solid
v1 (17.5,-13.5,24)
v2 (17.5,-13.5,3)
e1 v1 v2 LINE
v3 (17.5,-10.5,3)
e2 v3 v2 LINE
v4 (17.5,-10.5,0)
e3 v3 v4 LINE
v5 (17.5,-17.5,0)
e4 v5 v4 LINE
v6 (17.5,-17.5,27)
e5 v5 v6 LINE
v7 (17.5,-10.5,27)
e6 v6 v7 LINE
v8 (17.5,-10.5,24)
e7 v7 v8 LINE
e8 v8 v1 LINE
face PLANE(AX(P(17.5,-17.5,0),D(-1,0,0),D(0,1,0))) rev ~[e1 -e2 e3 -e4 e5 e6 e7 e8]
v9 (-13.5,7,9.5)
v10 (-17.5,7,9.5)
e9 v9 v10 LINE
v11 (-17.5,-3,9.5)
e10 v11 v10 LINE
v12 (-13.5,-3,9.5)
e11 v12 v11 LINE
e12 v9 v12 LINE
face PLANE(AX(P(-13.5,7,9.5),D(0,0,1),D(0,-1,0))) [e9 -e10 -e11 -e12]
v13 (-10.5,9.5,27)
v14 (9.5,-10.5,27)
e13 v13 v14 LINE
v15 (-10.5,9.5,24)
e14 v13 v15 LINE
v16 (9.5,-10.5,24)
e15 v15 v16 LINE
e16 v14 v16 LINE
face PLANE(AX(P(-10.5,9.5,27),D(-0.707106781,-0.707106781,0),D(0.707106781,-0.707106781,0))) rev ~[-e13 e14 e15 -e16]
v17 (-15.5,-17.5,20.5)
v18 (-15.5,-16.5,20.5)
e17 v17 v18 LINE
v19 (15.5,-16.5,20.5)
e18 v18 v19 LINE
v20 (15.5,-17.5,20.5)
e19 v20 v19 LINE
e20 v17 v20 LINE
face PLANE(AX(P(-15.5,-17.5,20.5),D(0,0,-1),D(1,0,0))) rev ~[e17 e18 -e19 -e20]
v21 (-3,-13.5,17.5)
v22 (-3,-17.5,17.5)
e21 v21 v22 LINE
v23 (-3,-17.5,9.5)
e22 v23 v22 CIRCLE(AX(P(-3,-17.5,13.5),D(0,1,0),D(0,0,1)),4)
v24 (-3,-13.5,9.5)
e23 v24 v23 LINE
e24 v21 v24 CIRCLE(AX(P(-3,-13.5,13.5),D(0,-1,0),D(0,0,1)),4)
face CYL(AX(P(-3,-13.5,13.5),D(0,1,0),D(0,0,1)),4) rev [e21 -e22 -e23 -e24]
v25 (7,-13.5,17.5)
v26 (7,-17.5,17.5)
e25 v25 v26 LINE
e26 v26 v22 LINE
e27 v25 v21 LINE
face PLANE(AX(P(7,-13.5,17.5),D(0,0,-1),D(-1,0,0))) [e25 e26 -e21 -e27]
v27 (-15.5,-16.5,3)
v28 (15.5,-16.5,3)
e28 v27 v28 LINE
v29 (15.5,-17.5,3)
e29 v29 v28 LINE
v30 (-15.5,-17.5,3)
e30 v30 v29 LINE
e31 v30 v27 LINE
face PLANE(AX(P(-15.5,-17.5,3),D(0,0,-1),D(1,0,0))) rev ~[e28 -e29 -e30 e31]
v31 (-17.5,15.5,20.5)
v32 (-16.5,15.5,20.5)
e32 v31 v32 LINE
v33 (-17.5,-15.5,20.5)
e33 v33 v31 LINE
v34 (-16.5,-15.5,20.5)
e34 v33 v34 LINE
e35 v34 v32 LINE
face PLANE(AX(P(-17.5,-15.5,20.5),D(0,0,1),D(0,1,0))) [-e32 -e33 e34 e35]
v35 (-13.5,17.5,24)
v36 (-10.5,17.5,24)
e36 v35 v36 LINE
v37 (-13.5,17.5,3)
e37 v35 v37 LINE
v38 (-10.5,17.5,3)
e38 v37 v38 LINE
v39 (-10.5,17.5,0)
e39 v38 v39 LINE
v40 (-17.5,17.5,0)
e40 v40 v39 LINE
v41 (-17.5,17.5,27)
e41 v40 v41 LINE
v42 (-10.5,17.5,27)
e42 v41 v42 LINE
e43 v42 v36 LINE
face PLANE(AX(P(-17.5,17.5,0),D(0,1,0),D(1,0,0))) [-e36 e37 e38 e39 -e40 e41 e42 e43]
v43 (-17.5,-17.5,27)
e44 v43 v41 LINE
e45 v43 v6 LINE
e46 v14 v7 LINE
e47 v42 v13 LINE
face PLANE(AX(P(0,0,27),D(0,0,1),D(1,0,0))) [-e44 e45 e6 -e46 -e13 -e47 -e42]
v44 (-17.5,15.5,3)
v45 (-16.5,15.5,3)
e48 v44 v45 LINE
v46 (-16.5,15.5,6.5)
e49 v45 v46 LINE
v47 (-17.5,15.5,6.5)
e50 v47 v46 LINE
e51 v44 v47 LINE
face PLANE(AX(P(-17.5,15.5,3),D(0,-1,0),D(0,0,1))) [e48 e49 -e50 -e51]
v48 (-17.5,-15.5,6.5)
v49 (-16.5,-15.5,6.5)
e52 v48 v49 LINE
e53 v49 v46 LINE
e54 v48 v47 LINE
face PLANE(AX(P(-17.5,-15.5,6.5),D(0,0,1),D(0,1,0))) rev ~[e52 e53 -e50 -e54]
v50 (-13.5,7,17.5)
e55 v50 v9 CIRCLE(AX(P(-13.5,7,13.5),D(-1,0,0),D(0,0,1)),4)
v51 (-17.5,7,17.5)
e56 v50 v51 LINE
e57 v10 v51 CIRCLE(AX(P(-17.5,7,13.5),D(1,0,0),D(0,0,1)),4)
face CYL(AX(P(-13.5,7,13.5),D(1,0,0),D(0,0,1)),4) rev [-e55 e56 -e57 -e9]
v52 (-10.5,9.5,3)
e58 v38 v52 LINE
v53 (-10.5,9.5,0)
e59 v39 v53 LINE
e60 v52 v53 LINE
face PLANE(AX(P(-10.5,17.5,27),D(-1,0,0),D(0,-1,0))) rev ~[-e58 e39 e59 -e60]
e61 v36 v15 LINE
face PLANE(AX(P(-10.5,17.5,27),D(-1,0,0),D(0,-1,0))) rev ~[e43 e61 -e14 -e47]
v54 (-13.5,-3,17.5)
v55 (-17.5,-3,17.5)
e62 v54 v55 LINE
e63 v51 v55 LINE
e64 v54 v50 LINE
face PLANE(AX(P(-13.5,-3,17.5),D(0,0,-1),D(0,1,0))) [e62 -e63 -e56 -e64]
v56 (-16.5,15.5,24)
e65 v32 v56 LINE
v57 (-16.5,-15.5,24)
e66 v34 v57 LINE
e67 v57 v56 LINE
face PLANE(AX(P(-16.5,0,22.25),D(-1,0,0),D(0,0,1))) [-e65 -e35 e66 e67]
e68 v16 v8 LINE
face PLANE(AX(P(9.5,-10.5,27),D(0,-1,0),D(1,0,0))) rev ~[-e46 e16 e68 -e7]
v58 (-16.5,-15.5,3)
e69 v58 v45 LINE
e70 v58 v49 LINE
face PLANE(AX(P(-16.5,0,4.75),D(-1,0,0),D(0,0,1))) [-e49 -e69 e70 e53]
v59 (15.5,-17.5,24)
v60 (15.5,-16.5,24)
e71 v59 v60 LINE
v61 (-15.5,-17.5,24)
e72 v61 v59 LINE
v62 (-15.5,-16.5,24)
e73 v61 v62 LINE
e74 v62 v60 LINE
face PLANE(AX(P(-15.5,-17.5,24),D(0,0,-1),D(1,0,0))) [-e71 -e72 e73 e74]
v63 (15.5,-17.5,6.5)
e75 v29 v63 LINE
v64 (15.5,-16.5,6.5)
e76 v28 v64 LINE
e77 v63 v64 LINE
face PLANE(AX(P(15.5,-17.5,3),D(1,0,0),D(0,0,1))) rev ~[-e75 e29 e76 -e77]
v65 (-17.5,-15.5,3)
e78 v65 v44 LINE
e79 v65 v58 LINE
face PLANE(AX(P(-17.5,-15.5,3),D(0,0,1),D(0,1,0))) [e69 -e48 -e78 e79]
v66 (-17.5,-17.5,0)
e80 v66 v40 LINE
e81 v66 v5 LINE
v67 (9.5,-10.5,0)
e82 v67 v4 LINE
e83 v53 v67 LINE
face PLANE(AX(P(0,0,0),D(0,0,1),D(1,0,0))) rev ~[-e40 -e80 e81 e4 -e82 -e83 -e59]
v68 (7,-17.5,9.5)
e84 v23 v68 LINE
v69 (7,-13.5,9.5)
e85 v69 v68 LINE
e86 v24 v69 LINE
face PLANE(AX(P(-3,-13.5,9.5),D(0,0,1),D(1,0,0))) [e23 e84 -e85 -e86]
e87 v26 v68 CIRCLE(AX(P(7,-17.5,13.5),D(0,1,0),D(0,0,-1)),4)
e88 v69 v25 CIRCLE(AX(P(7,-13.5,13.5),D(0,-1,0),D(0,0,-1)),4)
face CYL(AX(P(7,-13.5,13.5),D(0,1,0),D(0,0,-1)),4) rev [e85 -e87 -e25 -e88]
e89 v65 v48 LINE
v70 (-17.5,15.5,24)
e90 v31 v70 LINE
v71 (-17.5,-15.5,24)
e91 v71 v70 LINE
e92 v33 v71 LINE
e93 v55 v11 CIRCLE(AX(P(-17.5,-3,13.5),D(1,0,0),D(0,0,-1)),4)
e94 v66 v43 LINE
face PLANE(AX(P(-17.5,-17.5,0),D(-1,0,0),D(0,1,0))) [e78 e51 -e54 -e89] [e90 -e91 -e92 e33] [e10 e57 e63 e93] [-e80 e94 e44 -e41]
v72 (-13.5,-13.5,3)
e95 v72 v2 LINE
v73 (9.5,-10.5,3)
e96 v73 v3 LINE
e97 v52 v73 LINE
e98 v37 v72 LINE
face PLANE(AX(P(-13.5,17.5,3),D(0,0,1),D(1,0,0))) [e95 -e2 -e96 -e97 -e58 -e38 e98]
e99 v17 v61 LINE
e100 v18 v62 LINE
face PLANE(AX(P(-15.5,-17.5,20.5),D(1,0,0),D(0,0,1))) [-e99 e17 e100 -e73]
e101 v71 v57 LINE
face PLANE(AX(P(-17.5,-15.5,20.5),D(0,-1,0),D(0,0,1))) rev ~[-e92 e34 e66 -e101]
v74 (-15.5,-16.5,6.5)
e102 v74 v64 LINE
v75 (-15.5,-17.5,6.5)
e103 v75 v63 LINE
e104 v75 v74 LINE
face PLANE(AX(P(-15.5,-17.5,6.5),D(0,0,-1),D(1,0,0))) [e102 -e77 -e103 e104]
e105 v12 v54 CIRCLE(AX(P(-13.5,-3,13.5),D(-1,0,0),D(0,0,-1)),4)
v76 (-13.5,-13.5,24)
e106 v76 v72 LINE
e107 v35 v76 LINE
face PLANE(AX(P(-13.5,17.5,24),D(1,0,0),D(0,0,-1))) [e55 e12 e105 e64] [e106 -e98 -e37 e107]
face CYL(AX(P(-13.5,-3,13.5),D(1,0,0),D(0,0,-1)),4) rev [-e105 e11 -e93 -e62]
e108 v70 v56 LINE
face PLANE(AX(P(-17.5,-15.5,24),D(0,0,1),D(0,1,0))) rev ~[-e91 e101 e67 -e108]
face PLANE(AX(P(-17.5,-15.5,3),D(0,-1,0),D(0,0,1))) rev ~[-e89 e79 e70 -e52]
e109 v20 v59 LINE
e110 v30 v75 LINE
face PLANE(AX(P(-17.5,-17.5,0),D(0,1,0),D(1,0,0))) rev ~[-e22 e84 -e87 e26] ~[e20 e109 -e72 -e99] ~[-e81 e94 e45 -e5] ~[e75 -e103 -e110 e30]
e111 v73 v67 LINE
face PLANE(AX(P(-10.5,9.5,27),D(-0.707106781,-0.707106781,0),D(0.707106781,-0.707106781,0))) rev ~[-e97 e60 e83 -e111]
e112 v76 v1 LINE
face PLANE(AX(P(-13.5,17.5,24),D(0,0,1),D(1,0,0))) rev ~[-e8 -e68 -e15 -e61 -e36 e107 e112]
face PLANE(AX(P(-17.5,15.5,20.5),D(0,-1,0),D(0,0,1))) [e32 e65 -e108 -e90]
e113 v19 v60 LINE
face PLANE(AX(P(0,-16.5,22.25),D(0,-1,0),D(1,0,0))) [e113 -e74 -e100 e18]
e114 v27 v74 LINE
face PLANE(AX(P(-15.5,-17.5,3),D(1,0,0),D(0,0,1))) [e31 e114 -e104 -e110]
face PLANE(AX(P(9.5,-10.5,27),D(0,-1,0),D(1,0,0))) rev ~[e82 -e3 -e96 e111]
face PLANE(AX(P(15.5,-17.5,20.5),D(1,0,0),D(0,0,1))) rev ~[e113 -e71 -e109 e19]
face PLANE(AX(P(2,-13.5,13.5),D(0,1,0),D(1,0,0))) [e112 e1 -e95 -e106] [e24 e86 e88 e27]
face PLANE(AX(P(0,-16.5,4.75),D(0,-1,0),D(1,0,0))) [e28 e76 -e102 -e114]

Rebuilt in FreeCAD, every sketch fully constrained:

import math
import FreeCAD as App
import Part
import Sketcher

V = App.Vector
Q = App.Units.Quantity


def add_polygon(sketch, points):
    """Adds a closed chain of lines whose ends are joined by coincident constraints."""
    first, n = sketch.GeometryCount, len(points)
    for a, b in zip(points, points[1:] + points[:1]):
        sketch.addGeometry(Part.LineSegment(App.Vector(*a, 0), App.Vector(*b, 0)), False)
    for i in range(n):
        sketch.addConstraint(Sketcher.Constraint("Coincident", first + i, 2, first + (i + 1) % n, 1))

doc = App.newDocument("Part")
params = doc.addObject("Spreadsheet::Sheet", "Params")
for row, (alias, value) in enumerate([
    ("sketch1_width", "35 mm"),
    ("pad1_length", "27 mm"),
    ("sketch2_width", "31 mm"),
    ("sketch2_height", "21 mm"),
    ("pocket1_length", "31 mm"),
    ("sketch3_width", "28 mm"),
    ("sketch3_width2", "8 mm"),
    ("sketch4_radius", "4 mm"),
    ("sketch4_width", "10 mm"),
    ("sketch5_radius", "4 mm"),
    ("sketch5_width", "10 mm"),
    ("sketch6_width", "31 mm"),
    ("sketch6_height", "3.5 mm"),
    ("pocket5_length", "1 mm"),
    ("sketch7_width", "31 mm"),
    ("sketch7_height", "3.5 mm"),
    ("pocket6_length", "1 mm"),
    ("sketch8_width", "31 mm"),
    ("sketch8_height", "3.5 mm"),
    ("pocket7_length", "1 mm"),
    ("sketch9_width", "31 mm"),
    ("sketch9_height", "3.5 mm"),
    ("pocket8_length", "1 mm"),
], start=1):
    params.set(f"A{row}", alias)
    params.set(f"B{row}", "=" + value)
    params.setAlias(f"B{row}", alias)

body = doc.addObject("PartDesign::Body", "Body")

sketch1 = body.newObject("Sketcher::SketchObject", "Sketch")
sketch1.AttachmentSupport = (doc.getObject("XY_Plane"), [""])
sketch1.MapMode = "FlatFace"
add_polygon(sketch1, [(-18, 18), (-18, -18), (18, -18), (18, 18)])
sketch1.addConstraint([
    Sketcher.Constraint("Vertical", 0),
    Sketcher.Constraint("Horizontal", 1),
    Sketcher.Constraint("Vertical", 2),
    Sketcher.Constraint("Horizontal", 3),
    Sketcher.Constraint("Symmetric", 0, 2, 2, 2, -1, 1),
    Sketcher.Constraint("Equal", 3, 0),
    Sketcher.Constraint("DistanceX", 1, 1, 1, 2, Q("35 mm")),
])
sketch1.setExpression("Constraints[10]", "Params.sketch1_width")
pad1 = body.newObject("PartDesign::Pad", "Pad")
pad1.Profile = sketch1
pad1.setExpression("Length", "Params.pad1_length")

sketch2 = body.newObject("Sketcher::SketchObject", "Sketch001")
sketch2.AttachmentSupport = (doc.getObject("XZ_Plane"), [""])
sketch2.MapMode = "FlatFace"
sketch2.AttachmentOffset = App.Placement(V(0, 0, -17.5), App.Rotation())
add_polygon(sketch2, [(-14, 3), (-14, 24), (18, 24), (18, 3)])
sketch2.addConstraint([
    Sketcher.Constraint("Vertical", 0),
    Sketcher.Constraint("Horizontal", 1),
    Sketcher.Constraint("Vertical", 2),
    Sketcher.Constraint("Horizontal", 3),
    Sketcher.Constraint("DistanceX", 1, 1, 1, 2, Q("31 mm")),
    Sketcher.Constraint("DistanceY", 0, 1, 0, 2, Q("21 mm")),
    Sketcher.Constraint("DistanceY", -1, 1, 0, 2, Q("24 mm")),
    Sketcher.Constraint("DistanceX", 0, 2, -1, 1, Q("13.5 mm")),
])
sketch2.setExpression("Constraints[8]", "Params.sketch2_width")
sketch2.setExpression("Constraints[9]", "Params.sketch2_height")
pocket1 = body.newObject("PartDesign::Pocket", "Pocket")
pocket1.Profile = sketch2
pocket1.setExpression("Length", "Params.pocket1_length")
pocket1.Reversed = True

sketch3 = body.newObject("Sketcher::SketchObject", "Sketch002")
sketch3.AttachmentSupport = (doc.getObject("XY_Plane"), [""])
sketch3.MapMode = "FlatFace"
sketch3.AttachmentOffset = App.Placement(V(0, 0, 27), App.Rotation())
add_polygon(sketch3, [(18, 18), (-10, 18), (-10, 10), (10, -10), (18, -10)])
sketch3.addConstraint([
    Sketcher.Constraint("Horizontal", 0),
    Sketcher.Constraint("Vertical", 1),
    Sketcher.Constraint("Horizontal", 3),
    Sketcher.Constraint("Vertical", 4),
    Sketcher.Constraint("Equal", 3, 1),
    Sketcher.Constraint("Equal", 0, 4),
    Sketcher.Constraint("DistanceX", 0, 2, 0, 1, Q("28 mm")),
    Sketcher.Constraint("DistanceX", 3, 1, 3, 2, Q("8 mm")),
    Sketcher.Constraint("DistanceX", 0, 2, -1, 1, Q("10.5 mm")),
    Sketcher.Constraint("DistanceY", -1, 1, 0, 2, Q("17.5 mm")),
])
sketch3.setExpression("Constraints[11]", "Params.sketch3_width")
sketch3.setExpression("Constraints[12]", "Params.sketch3_width2")
pocket2 = body.newObject("PartDesign::Pocket", "Pocket001")
pocket2.Profile = sketch3
pocket2.Type = "ThroughAll"

sketch4 = body.newObject("Sketcher::SketchObject", "Sketch003")
sketch4.AttachmentSupport = (doc.getObject("YZ_Plane"), [""])
sketch4.MapMode = "FlatFace"
sketch4.AttachmentOffset = App.Placement(V(0, 0, -13.5), App.Rotation())
sketch4.addGeometry([
    Part.LineSegment(V(-3, 9.5, 0), V(7, 9.5, 0)),
    Part.ArcOfCircle(Part.Circle(V(7, 13.5, 0), V(0, 0, 1), 4), math.radians(-90), math.radians(90)),
    Part.LineSegment(V(7, 17.5, 0), V(-3, 17.5, 0)),
    Part.ArcOfCircle(Part.Circle(V(-3, 13.5, 0), V(0, 0, 1), 4), math.radians(90), math.radians(270)),
], False)
sketch4.addConstraint([
    Sketcher.Constraint("Tangent", 0, 2, 1, 1),
    Sketcher.Constraint("Tangent", 1, 2, 2, 1),
    Sketcher.Constraint("Tangent", 2, 2, 3, 1),
    Sketcher.Constraint("Tangent", 3, 2, 0, 1),
    Sketcher.Constraint("Horizontal", 0),
    Sketcher.Constraint("Horizontal", 2),
    Sketcher.Constraint("Radius", 1, Q("4 mm")),
    Sketcher.Constraint("DistanceX", 0, 1, 0, 2, Q("10 mm")),
    Sketcher.Constraint("DistanceX", -1, 1, 1, 3, Q("7 mm")),
    Sketcher.Constraint("DistanceY", -1, 1, 1, 3, Q("13.5 mm")),
])
sketch4.setExpression("Constraints[6]", "Params.sketch4_radius")
sketch4.setExpression("Constraints[7]", "Params.sketch4_width")
pocket3 = body.newObject("PartDesign::Pocket", "Pocket002")
pocket3.Profile = sketch4
pocket3.Type = "ThroughAll"

sketch5 = body.newObject("Sketcher::SketchObject", "Sketch004")
sketch5.AttachmentSupport = (doc.getObject("XZ_Plane"), [""])
sketch5.MapMode = "FlatFace"
sketch5.AttachmentOffset = App.Placement(V(0, 0, 13.5), App.Rotation())
sketch5.addGeometry([
    Part.LineSegment(V(7, 9.5, 0), V(-3, 9.5, 0)),
    Part.ArcOfCircle(Part.Circle(V(-3, 13.5, 0), V(0, 0, 1), 4), math.radians(90), math.radians(270)),
    Part.LineSegment(V(-3, 17.5, 0), V(7, 17.5, 0)),
    Part.ArcOfCircle(Part.Circle(V(7, 13.5, 0), V(0, 0, 1), 4), math.radians(-90), math.radians(90)),
], False)
sketch5.addConstraint([
    Sketcher.Constraint("Tangent", 0, 2, 1, 2),
    Sketcher.Constraint("Tangent", 1, 1, 2, 1),
    Sketcher.Constraint("Tangent", 2, 2, 3, 2),
    Sketcher.Constraint("Tangent", 3, 1, 0, 1),
    Sketcher.Constraint("Horizontal", 0),
    Sketcher.Constraint("Horizontal", 2),
    Sketcher.Constraint("Radius", 1, Q("4 mm")),
    Sketcher.Constraint("DistanceX", 0, 2, 0, 1, Q("10 mm")),
    Sketcher.Constraint("DistanceX", 1, 3, -1, 1, Q("3 mm")),
    Sketcher.Constraint("DistanceY", -1, 1, 1, 3, Q("13.5 mm")),
])
sketch5.setExpression("Constraints[6]", "Params.sketch5_radius")
sketch5.setExpression("Constraints[7]", "Params.sketch5_width")
pocket4 = body.newObject("PartDesign::Pocket", "Pocket003")
pocket4.Profile = sketch5
pocket4.Type = "ThroughAll"
pocket4.Reversed = True

sketch6 = body.newObject("Sketcher::SketchObject", "Sketch005")
sketch6.AttachmentSupport = (doc.getObject("XZ_Plane"), [""])
sketch6.MapMode = "FlatFace"
sketch6.AttachmentOffset = App.Placement(V(0, 0, 17.5), App.Rotation())
add_polygon(sketch6, [(-15.5, 24), (-15.5, 20.5), (15.5, 20.5), (15.5, 24)])
sketch6.addConstraint([
    Sketcher.Constraint("Vertical", 0),
    Sketcher.Constraint("Horizontal", 1),
    Sketcher.Constraint("Vertical", 2),
    Sketcher.Constraint("Horizontal", 3),
    Sketcher.Constraint("DistanceX", 1, 1, 1, 2, Q("31 mm")),
    Sketcher.Constraint("DistanceY", 0, 2, 0, 1, Q("3.5 mm")),
    Sketcher.Constraint("DistanceY", -1, 1, 2, 2, Q("24 mm")),
    Sketcher.Constraint("DistanceX", 0, 2, -1, 1, Q("15.5 mm")),
])
sketch6.setExpression("Constraints[8]", "Params.sketch6_width")
sketch6.setExpression("Constraints[9]", "Params.sketch6_height")
pocket5 = body.newObject("PartDesign::Pocket", "Pocket004")
pocket5.Profile = sketch6
pocket5.setExpression("Length", "Params.pocket5_length")

sketch7 = body.newObject("Sketcher::SketchObject", "Sketch006")
sketch7.AttachmentSupport = (doc.getObject("XZ_Plane"), [""])
sketch7.MapMode = "FlatFace"
sketch7.AttachmentOffset = App.Placement(V(0, 0, 17.5), App.Rotation())
add_polygon(sketch7, [(-15.5, 6.5), (-15.5, 3), (15.5, 3), (15.5, 6.5)])
sketch7.addConstraint([
    Sketcher.Constraint("Vertical", 0),
    Sketcher.Constraint("Horizontal", 1),
    Sketcher.Constraint("Vertical", 2),
    Sketcher.Constraint("Horizontal", 3),
    Sketcher.Constraint("DistanceX", 1, 1, 1, 2, Q("31 mm")),
    Sketcher.Constraint("DistanceY", 0, 2, 0, 1, Q("3.5 mm")),
    Sketcher.Constraint("DistanceY", -1, 1, 0, 2, Q("3 mm")),
    Sketcher.Constraint("DistanceX", 0, 2, -1, 1, Q("15.5 mm")),
])
sketch7.setExpression("Constraints[8]", "Params.sketch7_width")
sketch7.setExpression("Constraints[9]", "Params.sketch7_height")
pocket6 = body.newObject("PartDesign::Pocket", "Pocket005")
pocket6.Profile = sketch7
pocket6.setExpression("Length", "Params.pocket6_length")

sketch8 = body.newObject("Sketcher::SketchObject", "Sketch007")
sketch8.AttachmentSupport = (doc.getObject("YZ_Plane"), [""])
sketch8.MapMode = "FlatFace"
sketch8.AttachmentOffset = App.Placement(V(0, 0, -17.5), App.Rotation())
add_polygon(sketch8, [(15.5, 20.5), (-15.5, 20.5), (-15.5, 24), (15.5, 24)])
sketch8.addConstraint([
    Sketcher.Constraint("Horizontal", 0),
    Sketcher.Constraint("Vertical", 1),
    Sketcher.Constraint("Horizontal", 2),
    Sketcher.Constraint("Vertical", 3),
    Sketcher.Constraint("DistanceX", 0, 2, 0, 1, Q("31 mm")),
    Sketcher.Constraint("DistanceY", 1, 1, 1, 2, Q("3.5 mm")),
    Sketcher.Constraint("DistanceY", -1, 1, 1, 2, Q("24 mm")),
    Sketcher.Constraint("DistanceX", 0, 2, -1, 1, Q("15.5 mm")),
])
sketch8.setExpression("Constraints[8]", "Params.sketch8_width")
sketch8.setExpression("Constraints[9]", "Params.sketch8_height")
pocket7 = body.newObject("PartDesign::Pocket", "Pocket006")
pocket7.Profile = sketch8
pocket7.setExpression("Length", "Params.pocket7_length")
pocket7.Reversed = True

sketch9 = body.newObject("Sketcher::SketchObject", "Sketch008")
sketch9.AttachmentSupport = (doc.getObject("YZ_Plane"), [""])
sketch9.MapMode = "FlatFace"
sketch9.AttachmentOffset = App.Placement(V(0, 0, -17.5), App.Rotation())
add_polygon(sketch9, [(15.5, 3), (-15.5, 3), (-15.5, 6.5), (15.5, 6.5)])
sketch9.addConstraint([
    Sketcher.Constraint("Horizontal", 0),
    Sketcher.Constraint("Vertical", 1),
    Sketcher.Constraint("Horizontal", 2),
    Sketcher.Constraint("Vertical", 3),
    Sketcher.Constraint("DistanceX", 0, 2, 0, 1, Q("31 mm")),
    Sketcher.Constraint("DistanceY", 1, 1, 1, 2, Q("3.5 mm")),
    Sketcher.Constraint("DistanceY", -1, 1, 0, 2, Q("3 mm")),
    Sketcher.Constraint("DistanceX", 0, 2, -1, 1, Q("15.5 mm")),
])
sketch9.setExpression("Constraints[8]", "Params.sketch9_width")
sketch9.setExpression("Constraints[9]", "Params.sketch9_height")
pocket8 = body.newObject("PartDesign::Pocket", "Pocket007")
pocket8.Profile = sketch9
pocket8.setExpression("Length", "Params.pocket8_length")
pocket8.Reversed = True

doc.recompute()
